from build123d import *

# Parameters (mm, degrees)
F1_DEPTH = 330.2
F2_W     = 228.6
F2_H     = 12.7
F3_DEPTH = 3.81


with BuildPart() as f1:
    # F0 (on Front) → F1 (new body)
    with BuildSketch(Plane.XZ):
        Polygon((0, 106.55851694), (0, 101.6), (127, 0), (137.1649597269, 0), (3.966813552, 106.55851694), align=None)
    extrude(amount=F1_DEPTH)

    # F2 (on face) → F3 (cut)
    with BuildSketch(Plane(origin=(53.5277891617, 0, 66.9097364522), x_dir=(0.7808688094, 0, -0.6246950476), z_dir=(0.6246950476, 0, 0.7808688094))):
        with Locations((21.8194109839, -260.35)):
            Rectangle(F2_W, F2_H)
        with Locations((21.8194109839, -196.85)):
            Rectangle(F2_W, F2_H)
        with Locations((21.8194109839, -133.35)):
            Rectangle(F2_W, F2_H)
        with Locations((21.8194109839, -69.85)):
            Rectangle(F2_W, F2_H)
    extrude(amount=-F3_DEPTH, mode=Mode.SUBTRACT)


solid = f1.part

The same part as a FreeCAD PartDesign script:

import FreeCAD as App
import Part
import Sketcher

V = App.Vector
Q = App.Units.Quantity

doc = App.newDocument("Part")
body = doc.addObject("PartDesign::Body", "Body")

sketch1 = body.newObject("Sketcher::SketchObject", "Sketch")
sketch1.AttachmentSupport = (doc.getObject("XZ_Plane"), [""])
sketch1.MapMode = "FlatFace"
sketch1.addGeometry([
    Part.LineSegment(V(0, 106.6, 0), V(0, 101.6, 0)),
    Part.LineSegment(V(0, 101.6, 0), V(127, 0, 0)),
    Part.LineSegment(V(127, 0, 0), V(137.2, 0, 0)),
    Part.LineSegment(V(137.2, 0, 0), V(4, 106.6, 0)),
    Part.LineSegment(V(4, 106.6, 0), V(0, 106.6, 0)),
], False)
sketch1.addConstraint([
    Sketcher.Constraint("Coincident", 0, 2, 1, 1),
    Sketcher.Constraint("Coincident", 1, 2, 2, 1),
    Sketcher.Constraint("Coincident", 2, 2, 3, 1),
    Sketcher.Constraint("Coincident", 3, 2, 4, 1),
    Sketcher.Constraint("Coincident", 4, 2, 0, 1),
    Sketcher.Constraint("Vertical", 0),
    Sketcher.Constraint("Horizontal", 2),
    Sketcher.Constraint("Horizontal", 4),
    Sketcher.Constraint("PointOnObject", 0, 2, -2),
    Sketcher.Constraint("PointOnObject", 1, 2, -1),
    Sketcher.Constraint("Parallel", 1, 3),
    Sketcher.Constraint("DistanceY", -1, 1, 0, 2, Q("4 in")),
    Sketcher.Constraint("DistanceX", -1, 1, 1, 2, Q("5 in")),
    Sketcher.Constraint("DistanceX", 2, 1, 2, 2, 10.16496),
    Sketcher.Constraint("DistanceX", 4, 2, 4, 1, 3.966814),
])
pad1 = body.newObject("PartDesign::Pad", "Pad")
pad1.Profile = sketch1
pad1.Length = Q("13 in")

sketch2 = body.newObject("Sketcher::SketchObject", "Sketch001")
sketch2.Placement = App.Placement(V(53.527789, 0, 66.909736), App.Rotation(V(0.780868809, 0, -0.624695048), V(0, 1, 0), V(0.624695048, 0, 0.780868809), "ZXY"))
sketch2.addGeometry([
    Part.LineSegment(V(-92, -254, 0), V(-92, -267, 0)),
    Part.LineSegment(V(-92, -267, 0), V(136, -267, 0)),
    Part.LineSegment(V(136, -267, 0), V(136, -254, 0)),
    Part.LineSegment(V(136, -254, 0), V(-92, -254, 0)),
    Part.LineSegment(V(-92, -190, 0), V(-92, -203, 0)),
    Part.LineSegment(V(-92, -203, 0), V(136, -203, 0)),
    Part.LineSegment(V(136, -203, 0), V(136, -190, 0)),
    Part.LineSegment(V(136, -190, 0), V(-92, -190, 0)),
    Part.LineSegment(V(-92, -127, 0), V(-92, -140, 0)),
    Part.LineSegment(V(-92, -140, 0), V(136, -140, 0)),
    Part.LineSegment(V(136, -140, 0), V(136, -127, 0)),
    Part.LineSegment(V(136, -127, 0), V(-92, -127, 0)),
    Part.LineSegment(V(-92, -63, 0), V(-92, -76, 0)),
    Part.LineSegment(V(-92, -76, 0), V(136, -76, 0)),
    Part.LineSegment(V(136, -76, 0), V(136, -63, 0)),
    Part.LineSegment(V(136, -63, 0), V(-92, -63, 0)),
], False)
sketch2.addConstraint([
    Sketcher.Constraint("Coincident", 0, 2, 1, 1),
    Sketcher.Constraint("Coincident", 1, 2, 2, 1),
    Sketcher.Constraint("Coincident", 2, 2, 3, 1),
    Sketcher.Constraint("Coincident", 3, 2, 0, 1),
    Sketcher.Constraint("Coincident", 4, 2, 5, 1),
    Sketcher.Constraint("Coincident", 5, 2, 6, 1),
    Sketcher.Constraint("Coincident", 6, 2, 7, 1),
    Sketcher.Constraint("Coincident", 7, 2, 4, 1),
    Sketcher.Constraint("Coincident", 8, 2, 9, 1),
    Sketcher.Constraint("Coincident", 9, 2, 10, 1),
    Sketcher.Constraint("Coincident", 10, 2, 11, 1),
    Sketcher.Constraint("Coincident", 11, 2, 8, 1),
    Sketcher.Constraint("Coincident", 12, 2, 13, 1),
    Sketcher.Constraint("Coincident", 13, 2, 14, 1),
    Sketcher.Constraint("Coincident", 14, 2, 15, 1),
    Sketcher.Constraint("Coincident", 15, 2, 12, 1),
    Sketcher.Constraint("Vertical", 0),
    Sketcher.Constraint("Horizontal", 1),
    Sketcher.Constraint("Vertical", 2),
    Sketcher.Constraint("Horizontal", 3),
    Sketcher.Constraint("Vertical", 4),
    Sketcher.Constraint("Horizontal", 5),
    Sketcher.Constraint("Vertical", 6),
    Sketcher.Constraint("Horizontal", 7),
    Sketcher.Constraint("Vertical", 8),
    Sketcher.Constraint("Horizontal", 9),
    Sketcher.Constraint("Vertical", 10),
    Sketcher.Constraint("Horizontal", 11),
    Sketcher.Constraint("Vertical", 12),
    Sketcher.Constraint("Horizontal", 13),
    Sketcher.Constraint("Vertical", 14),
    Sketcher.Constraint("Horizontal", 15),
    Sketcher.Constraint("Vertical", 3, 2, 4, 2),
    Sketcher.Constraint("Vertical", 2, 2, 5, 2),
    Sketcher.Constraint("Vertical", 7, 2, 8, 2),
    Sketcher.Constraint("Vertical", 6, 2, 9, 2),
    Sketcher.Constraint("Vertical", 11, 2, 12, 2),
    Sketcher.Constraint("Vertical", 10, 2, 13, 2),
    Sketcher.Constraint("Equal", 2, 4),
    Sketcher.Constraint("Equal", 6, 8),
    Sketcher.Constraint("Equal", 10, 12),
    Sketcher.Constraint("DistanceX", 1, 1, 1, 2, Q("9 in")),
    Sketcher.Constraint("DistanceY", 0, 2, 0, 1, Q("0.5 in")),
    Sketcher.Constraint("DistanceY", 2, 2, -1, 1, Q("10 in")),
    Sketcher.Constraint("DistanceY", 4, 2, -1, 1, Q("8 in")),
    Sketcher.Constraint("DistanceY", 10, 2, -1, 1, Q("5 in")),
    Sketcher.Constraint("DistanceY", 12, 2, -1, 1, Q("3 in")),
    Sketcher.Constraint("DistanceX", 0, 2, -1, 1, 92.480589),
])
pocket1 = body.newObject("PartDesign::Pocket", "Pocket")
pocket1.Profile = sketch2
pocket1.Length = Q("0.15 in")

doc.recompute()
